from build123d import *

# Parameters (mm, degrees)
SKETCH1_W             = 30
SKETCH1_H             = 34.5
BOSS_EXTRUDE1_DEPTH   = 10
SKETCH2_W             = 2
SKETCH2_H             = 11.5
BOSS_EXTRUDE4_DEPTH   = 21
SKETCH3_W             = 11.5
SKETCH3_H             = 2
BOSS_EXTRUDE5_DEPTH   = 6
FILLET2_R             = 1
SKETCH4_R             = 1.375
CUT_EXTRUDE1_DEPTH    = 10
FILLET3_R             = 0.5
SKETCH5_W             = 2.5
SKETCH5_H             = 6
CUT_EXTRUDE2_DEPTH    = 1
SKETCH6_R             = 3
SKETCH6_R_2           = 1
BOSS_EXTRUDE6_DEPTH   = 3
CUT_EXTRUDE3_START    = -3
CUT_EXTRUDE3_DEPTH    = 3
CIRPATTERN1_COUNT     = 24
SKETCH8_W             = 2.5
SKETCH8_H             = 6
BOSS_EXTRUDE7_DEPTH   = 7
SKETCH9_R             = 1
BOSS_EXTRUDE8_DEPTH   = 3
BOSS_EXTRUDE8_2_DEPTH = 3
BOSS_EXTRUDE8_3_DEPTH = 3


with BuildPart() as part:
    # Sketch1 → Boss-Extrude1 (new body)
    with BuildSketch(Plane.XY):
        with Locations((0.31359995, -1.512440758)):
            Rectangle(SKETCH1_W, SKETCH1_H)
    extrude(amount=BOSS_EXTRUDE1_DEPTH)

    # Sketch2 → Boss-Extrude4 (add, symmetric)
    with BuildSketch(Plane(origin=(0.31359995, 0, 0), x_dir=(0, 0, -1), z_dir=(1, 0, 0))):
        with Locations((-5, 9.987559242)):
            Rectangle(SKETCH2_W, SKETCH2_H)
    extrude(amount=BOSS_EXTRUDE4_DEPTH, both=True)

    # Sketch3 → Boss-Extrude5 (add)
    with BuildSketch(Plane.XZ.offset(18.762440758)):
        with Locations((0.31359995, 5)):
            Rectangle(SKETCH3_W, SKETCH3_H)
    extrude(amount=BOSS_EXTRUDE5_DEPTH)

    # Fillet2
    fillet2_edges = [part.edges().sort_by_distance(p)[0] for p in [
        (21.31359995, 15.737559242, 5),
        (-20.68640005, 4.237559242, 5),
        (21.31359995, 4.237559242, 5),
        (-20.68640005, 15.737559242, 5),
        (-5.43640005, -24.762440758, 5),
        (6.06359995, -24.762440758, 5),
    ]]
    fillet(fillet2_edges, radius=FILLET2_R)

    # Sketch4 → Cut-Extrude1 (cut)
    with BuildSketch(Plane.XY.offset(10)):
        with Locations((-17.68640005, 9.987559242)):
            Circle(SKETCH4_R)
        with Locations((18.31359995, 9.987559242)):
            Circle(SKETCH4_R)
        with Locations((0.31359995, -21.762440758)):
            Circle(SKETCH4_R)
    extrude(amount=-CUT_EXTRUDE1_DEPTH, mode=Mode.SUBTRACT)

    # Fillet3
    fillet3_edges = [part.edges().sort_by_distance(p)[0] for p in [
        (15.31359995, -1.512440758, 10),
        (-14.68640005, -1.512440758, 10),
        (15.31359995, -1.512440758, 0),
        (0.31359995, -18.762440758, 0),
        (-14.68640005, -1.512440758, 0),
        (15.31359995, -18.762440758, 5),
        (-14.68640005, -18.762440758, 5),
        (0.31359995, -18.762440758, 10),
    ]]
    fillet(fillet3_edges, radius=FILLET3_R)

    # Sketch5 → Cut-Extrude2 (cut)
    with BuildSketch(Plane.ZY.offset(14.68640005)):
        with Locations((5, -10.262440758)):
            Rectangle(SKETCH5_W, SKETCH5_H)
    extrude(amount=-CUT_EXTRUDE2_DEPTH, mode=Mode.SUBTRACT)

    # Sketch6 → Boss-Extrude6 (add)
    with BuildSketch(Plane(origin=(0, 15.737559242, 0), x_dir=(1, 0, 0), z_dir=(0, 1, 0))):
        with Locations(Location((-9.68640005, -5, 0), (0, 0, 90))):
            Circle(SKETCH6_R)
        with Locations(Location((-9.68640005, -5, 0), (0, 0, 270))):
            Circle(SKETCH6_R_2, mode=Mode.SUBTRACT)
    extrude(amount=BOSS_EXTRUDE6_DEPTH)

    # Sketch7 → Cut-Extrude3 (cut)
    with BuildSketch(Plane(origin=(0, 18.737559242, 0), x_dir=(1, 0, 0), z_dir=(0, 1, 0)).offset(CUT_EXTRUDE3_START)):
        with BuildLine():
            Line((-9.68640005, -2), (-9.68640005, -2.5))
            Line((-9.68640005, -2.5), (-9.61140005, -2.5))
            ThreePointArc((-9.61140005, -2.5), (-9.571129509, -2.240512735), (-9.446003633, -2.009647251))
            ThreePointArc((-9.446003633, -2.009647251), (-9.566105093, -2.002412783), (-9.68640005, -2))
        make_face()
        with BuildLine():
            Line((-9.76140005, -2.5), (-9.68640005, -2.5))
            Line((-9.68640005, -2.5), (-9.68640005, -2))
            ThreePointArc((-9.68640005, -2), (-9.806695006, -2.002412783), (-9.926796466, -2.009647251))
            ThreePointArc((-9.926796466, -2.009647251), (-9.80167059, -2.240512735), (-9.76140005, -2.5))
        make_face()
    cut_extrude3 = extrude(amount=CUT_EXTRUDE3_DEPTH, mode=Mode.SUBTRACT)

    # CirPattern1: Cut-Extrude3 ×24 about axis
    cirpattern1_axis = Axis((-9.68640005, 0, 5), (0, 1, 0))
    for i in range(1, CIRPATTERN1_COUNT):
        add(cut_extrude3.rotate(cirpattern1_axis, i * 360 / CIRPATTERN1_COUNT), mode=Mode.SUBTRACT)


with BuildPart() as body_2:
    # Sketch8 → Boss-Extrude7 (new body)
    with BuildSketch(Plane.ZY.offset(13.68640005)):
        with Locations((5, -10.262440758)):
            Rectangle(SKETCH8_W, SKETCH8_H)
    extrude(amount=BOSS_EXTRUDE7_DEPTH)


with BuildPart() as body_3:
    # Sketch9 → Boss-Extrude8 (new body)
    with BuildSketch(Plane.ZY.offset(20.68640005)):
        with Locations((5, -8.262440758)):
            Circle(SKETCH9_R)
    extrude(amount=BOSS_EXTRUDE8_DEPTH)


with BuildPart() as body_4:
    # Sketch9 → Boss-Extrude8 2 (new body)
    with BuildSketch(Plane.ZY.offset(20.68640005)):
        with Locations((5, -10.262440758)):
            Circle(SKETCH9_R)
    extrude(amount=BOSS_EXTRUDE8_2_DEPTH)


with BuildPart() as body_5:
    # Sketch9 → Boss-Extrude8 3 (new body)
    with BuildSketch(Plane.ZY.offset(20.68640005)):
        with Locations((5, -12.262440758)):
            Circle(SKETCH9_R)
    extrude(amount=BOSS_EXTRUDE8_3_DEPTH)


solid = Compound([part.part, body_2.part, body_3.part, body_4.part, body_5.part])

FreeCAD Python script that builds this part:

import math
import FreeCAD as App
import Part
import Sketcher

V = App.Vector


def edges_at(feature, points):
    """Names of the edges that pass closest to the given points."""
    edges = feature.Shape.Edges
    near = lambda p: min(range(len(edges)), key=lambda i: edges[i].distToShape(Part.Vertex(*p))[0])
    return sorted({f"Edge{near(p) + 1}" for p in points})

doc = App.newDocument("Part")
body = doc.addObject("PartDesign::Body", "Body")

# Sketch on XY plane
sketch1 = body.newObject("Sketcher::SketchObject", "Sketch")
sketch1.AttachmentSupport = (doc.getObject("XY_Plane"), [""])
sketch1.MapMode = "FlatFace"
sketch1.addGeometry([
    Part.LineSegment(V(-15, 16, 0), V(-15, -19, 0)),
    Part.LineSegment(V(-15, -19, 0), V(15, -19, 0)),
    Part.LineSegment(V(15, -19, 0), V(15, 16, 0)),
    Part.LineSegment(V(15, 16, 0), V(-15, 16, 0)),
], False)
sketch1.addConstraint([
    Sketcher.Constraint("Coincident", 0, 2, 1, 1),
    Sketcher.Constraint("Coincident", 1, 2, 2, 1),
    Sketcher.Constraint("Coincident", 2, 2, 3, 1),
    Sketcher.Constraint("Coincident", 3, 2, 0, 1),
    Sketcher.Constraint("Vertical", 0),
    Sketcher.Constraint("Horizontal", 1),
    Sketcher.Constraint("Vertical", 2),
    Sketcher.Constraint("Horizontal", 3),
    Sketcher.Constraint("DistanceX", 1, 1, 1, 2, 30.0),
    Sketcher.Constraint("DistanceY", 0, 2, 0, 1, 34.5),
    Sketcher.Constraint("DistanceX", 0, 2, -1, 1, 14.6864),
    Sketcher.Constraint("DistanceY", 0, 2, -1, 1, 18.762441),
])
pad1 = body.newObject("PartDesign::Pad", "Pad")
pad1.Profile = sketch1
pad1.Length = 10

# Sketch on YZ plane
sketch2 = body.newObject("Sketcher::SketchObject", "Sketch001")
sketch2.AttachmentSupport = (doc.getObject("YZ_Plane"), [""])
sketch2.MapMode = "FlatFace"
sketch2.AttachmentOffset = App.Placement(V(0, 0, 0.3136), App.Rotation())
sketch2.addGeometry([
    Part.LineSegment(V(15.7, 6, 0), V(4.2, 6, 0)),
    Part.LineSegment(V(4.2, 6, 0), V(4.2, 4, 0)),
    Part.LineSegment(V(4.2, 4, 0), V(15.7, 4, 0)),
    Part.LineSegment(V(15.7, 4, 0), V(15.7, 6, 0)),
], False)
sketch2.addConstraint([
    Sketcher.Constraint("Coincident", 0, 2, 1, 1),
    Sketcher.Constraint("Coincident", 1, 2, 2, 1),
    Sketcher.Constraint("Coincident", 2, 2, 3, 1),
    Sketcher.Constraint("Coincident", 3, 2, 0, 1),
    Sketcher.Constraint("Horizontal", 0),
    Sketcher.Constraint("Vertical", 1),
    Sketcher.Constraint("Horizontal", 2),
    Sketcher.Constraint("Vertical", 3),
    Sketcher.Constraint("DistanceY", 1, 2, 1, 1, 2.0),
    Sketcher.Constraint("DistanceX", 0, 2, 0, 1, 11.5),
    Sketcher.Constraint("DistanceY", -1, 1, 0, 2, 6.0),
    Sketcher.Constraint("DistanceX", -1, 1, 0, 2, 4.237559),
])
pad2 = body.newObject("PartDesign::Pad", "Pad001")
pad2.Profile = sketch2
pad2.Length = 42
pad2.Midplane = True

# Sketch on XZ plane
sketch3 = body.newObject("Sketcher::SketchObject", "Sketch002")
sketch3.AttachmentSupport = (doc.getObject("XZ_Plane"), [""])
sketch3.MapMode = "FlatFace"
sketch3.AttachmentOffset = App.Placement(V(0, 0, 18.762441), App.Rotation())
sketch3.addGeometry([
    Part.LineSegment(V(-5.4, 6, 0), V(-5.4, 4, 0)),
    Part.LineSegment(V(-5.4, 4, 0), V(6.1, 4, 0)),
    Part.LineSegment(V(6.1, 4, 0), V(6.1, 6, 0)),
    Part.LineSegment(V(6.1, 6, 0), V(-5.4, 6, 0)),
], False)
sketch3.addConstraint([
    Sketcher.Constraint("Coincident", 0, 2, 1, 1),
    Sketcher.Constraint("Coincident", 1, 2, 2, 1),
    Sketcher.Constraint("Coincident", 2, 2, 3, 1),
    Sketcher.Constraint("Coincident", 3, 2, 0, 1),
    Sketcher.Constraint("Vertical", 0),
    Sketcher.Constraint("Horizontal", 1),
    Sketcher.Constraint("Vertical", 2),
    Sketcher.Constraint("Horizontal", 3),
    Sketcher.Constraint("DistanceY", 0, 2, 0, 1, 2.0),
    Sketcher.Constraint("DistanceX", 1, 1, 1, 2, 11.5),
    Sketcher.Constraint("DistanceY", -1, 1, 0, 2, 4.0),
    Sketcher.Constraint("DistanceX", 0, 2, -1, 1, 5.4364),
])
pad3 = body.newObject("PartDesign::Pad", "Pad002")
pad3.Profile = sketch3
pad3.Length = 6
doc.recompute()

fillet = body.newObject("PartDesign::Fillet", "Fillet")
fillet.Base = (pad3, edges_at(pad3, [
    (21.314, 15.738, 5),
    (-20.686, 4.238, 5),
    (21.314, 4.238, 5),
    (-20.686, 15.738, 5),
    (-5.436, -24.762, 5),
    (6.064, -24.762, 5),
]))
fillet.Radius = 1

# Sketch on XY plane
sketch4 = body.newObject("Sketcher::SketchObject", "Sketch003")
sketch4.AttachmentSupport = (doc.getObject("XY_Plane"), [""])
sketch4.MapMode = "FlatFace"
sketch4.AttachmentOffset = App.Placement(V(0, 0, 10), App.Rotation())
sketch4.addGeometry([
    Part.Circle(V(-17.7, 10, 0), V(0, 0, 1), 1.4),
    Part.Circle(V(18.3, 10, 0), V(0, 0, 1), 1.4),
    Part.Circle(V(0.3, -21.8, 0), V(0, 0, 1), 1.4),
], False)
sketch4.addConstraint([
    Sketcher.Constraint("Equal", 0, 1),
    Sketcher.Constraint("Equal", 1, 2),
    Sketcher.Constraint("Horizontal", 0, 3, 1, 3),
    Sketcher.Constraint("Diameter", 0, 2.75),
    Sketcher.Constraint("DistanceX", 0, 3, 1, 3, 36.0),
    Sketcher.Constraint("DistanceX", 0, 3, 2, 3, 18.0),
    Sketcher.Constraint("DistanceY", 2, 3, 0, 3, 31.75),
    Sketcher.Constraint("DistanceX", 0, 3, -1, 1, 17.6864),
    Sketcher.Constraint("DistanceY", -1, 1, 0, 3, 9.987559),
])
pocket1 = body.newObject("PartDesign::Pocket", "Pocket")
pocket1.Profile = sketch4
pocket1.Length = 10
doc.recompute()

fillet2 = body.newObject("PartDesign::Fillet", "Fillet001")
fillet2.Base = (pocket1, edges_at(pocket1, [
    (15.314, -1.512, 10),
    (-14.686, -1.512, 10),
    (15.314, -1.512, 0),
    (0.314, -18.762, 0),
    (-14.686, -1.512, 0),
    (15.314, -18.762, 5),
    (-14.686, -18.762, 5),
    (0.314, -18.762, 10),
]))
fillet2.Radius = 0.5

# Sketch on YZ plane
sketch5 = body.newObject("Sketcher::SketchObject", "Sketch004")
sketch5.AttachmentSupport = (doc.getObject("YZ_Plane"), [""])
sketch5.MapMode = "FlatFace"
sketch5.AttachmentOffset = App.Placement(V(0, 0, -14.6864), App.Rotation())
sketch5.addGeometry([
    Part.LineSegment(V(-7.3, 3.8, 0), V(-13.3, 3.8, 0)),
    Part.LineSegment(V(-13.3, 3.8, 0), V(-13.3, 6.2, 0)),
    Part.LineSegment(V(-13.3, 6.2, 0), V(-7.3, 6.2, 0)),
    Part.LineSegment(V(-7.3, 6.2, 0), V(-7.3, 3.8, 0)),
], False)
sketch5.addConstraint([
    Sketcher.Constraint("Coincident", 0, 2, 1, 1),
    Sketcher.Constraint("Coincident", 1, 2, 2, 1),
    Sketcher.Constraint("Coincident", 2, 2, 3, 1),
    Sketcher.Constraint("Coincident", 3, 2, 0, 1),
    Sketcher.Constraint("Horizontal", 0),
    Sketcher.Constraint("Vertical", 1),
    Sketcher.Constraint("Horizontal", 2),
    Sketcher.Constraint("Vertical", 3),
    Sketcher.Constraint("DistanceX", 0, 2, 0, 1, 6.0),
    Sketcher.Constraint("DistanceY", 1, 1, 1, 2, 2.5),
    Sketcher.Constraint("DistanceY", -1, 1, 0, 2, 3.75),
    Sketcher.Constraint("DistanceX", 0, 2, -1, 1, 13.262441),
])
pocket2 = body.newObject("PartDesign::Pocket", "Pocket001")
pocket2.Profile = sketch5
pocket2.Length = 1
pocket2.Reversed = True

# Sketch on XZ plane
sketch6 = body.newObject("Sketcher::SketchObject", "Sketch005")
sketch6.AttachmentSupport = (doc.getObject("XZ_Plane"), [""])
sketch6.MapMode = "FlatFace"
sketch6.AttachmentOffset = App.Placement(V(0, 0, -15.737559), App.Rotation())
sketch6.addGeometry([
    Part.Circle(V(-9.7, 5, 0), V(0, 0, 1), 3),
    Part.Circle(V(-9.7, 5, 0), V(0, 0, 1), 1),
], False)
sketch6.addConstraint([
    Sketcher.Constraint("Coincident", 1, 3, 0, 3),
    Sketcher.Constraint("Diameter", 0, 6.0),
    Sketcher.Constraint("Diameter", 1, 2.0),
    Sketcher.Constraint("DistanceY", -1, 1, 0, 3, 5.0),
    Sketcher.Constraint("DistanceX", 0, 3, -1, 1, 9.6864),
])
pad4 = body.newObject("PartDesign::Pad", "Pad003")
pad4.Profile = sketch6
pad4.Length = 3
pad4.Reversed = True

# Sketch on XZ plane
sketch7 = body.newObject("Sketcher::SketchObject", "Sketch006")
sketch7.AttachmentSupport = (doc.getObject("XZ_Plane"), [""])
sketch7.MapMode = "FlatFace"
sketch7.AttachmentOffset = App.Placement(V(0, 0, -15.737559), App.Rotation())
sketch7.addGeometry([
    Part.ArcOfCircle(Part.Circle(V(-8.84, 2.49, 0), V(0, 0, 1), 0.77), math.radians(179), math.radians(218)),  # 0
    Part.ArcOfCircle(Part.Circle(V(-9.69, 5, 0), V(0, 0, 1), 3), math.radians(-90), math.radians(-85.4)),  # 1
    Part.ArcOfCircle(Part.Circle(V(-9.69, 5, 0), V(0, 0, 1), 3), math.radians(-94.6), math.radians(-90)),  # 2
    Part.ArcOfCircle(Part.Circle(V(-10.53, 2.49, 0), V(0, 0, 1), 0.77), math.radians(-38), math.radians(1)),  # 3
    Part.LineSegment(V(-9.76, 2.5, 0), V(-9.61, 2.5, 0)),  # 4
], False)
sketch7.addConstraint([
    Sketcher.Constraint("Coincident", 0, 2, 1, 2),
    Sketcher.Constraint("Tangent", 1, 1, 2, 2),
    Sketcher.Constraint("Coincident", 2, 1, 3, 1),
    Sketcher.Constraint("Coincident", 3, 2, 4, 1),
    Sketcher.Constraint("Coincident", 4, 2, 0, 1),
    Sketcher.Constraint("Horizontal", 4),
    Sketcher.Constraint("Equal", 1, 2),
    Sketcher.Constraint("Equal", 0, 3),
    Sketcher.Constraint("Horizontal", 0, 3, 3, 3),
    Sketcher.Constraint("Horizontal", 0, 2, 2, 1),
    Sketcher.Constraint("Vertical", 2, 3, 1, 1),
    Sketcher.Constraint("Radius", 1, 3.0),
    Sketcher.Constraint("Radius", 0, 0.77),
    Sketcher.Constraint("DistanceY", -1, 1, 1, 3, 5.0),
    Sketcher.Constraint("DistanceX", 4, 1, 4, 2, 0.15),
    Sketcher.Constraint("DistanceY", -1, 1, 3, 2, 2.5),
    Sketcher.Constraint("DistanceX", 1, 3, -1, 1, 9.6864),
    Sketcher.Constraint("DistanceY", -1, 1, 0, 3, 2.486612),
])
pocket3 = body.newObject("PartDesign::Pocket", "Pocket002")
pocket3.Profile = sketch7
pocket3.Length = 3
doc.recompute()

datumline = body.newObject("PartDesign::Line", "DatumLine")
datumline.Placement = App.Placement(V(-9.6864, 0, 5), App.Rotation(V(0, 0, 1), V(0, 1, 0)))
polarpattern = body.newObject("PartDesign::PolarPattern", "PolarPattern")
polarpattern.Originals = [pocket3]
polarpattern.Axis = (datumline, [""])
polarpattern.Angle = 360
polarpattern.Occurrences = 24
body.Tip = polarpattern
body2 = doc.addObject("PartDesign::Body", "Body001")

# Sketch on YZ plane
sketch8 = body2.newObject("Sketcher::SketchObject", "Sketch007")
sketch8.AttachmentSupport = (doc.getObject("YZ_Plane001"), [""])
sketch8.MapMode = "FlatFace"
sketch8.AttachmentOffset = App.Placement(V(0, 0, -13.6864), App.Rotation())
sketch8.addGeometry([
    Part.LineSegment(V(-7.3, 3.8, 0), V(-13.3, 3.8, 0)),
    Part.LineSegment(V(-13.3, 3.8, 0), V(-13.3, 6.2, 0)),
    Part.LineSegment(V(-13.3, 6.2, 0), V(-7.3, 6.2, 0)),
    Part.LineSegment(V(-7.3, 6.2, 0), V(-7.3, 3.8, 0)),
], False)
sketch8.addConstraint([
    Sketcher.Constraint("Coincident", 0, 2, 1, 1),
    Sketcher.Constraint("Coincident", 1, 2, 2, 1),
    Sketcher.Constraint("Coincident", 2, 2, 3, 1),
    Sketcher.Constraint("Coincident", 3, 2, 0, 1),
    Sketcher.Constraint("Horizontal", 0),
    Sketcher.Constraint("Vertical", 1),
    Sketcher.Constraint("Horizontal", 2),
    Sketcher.Constraint("Vertical", 3),
    Sketcher.Constraint("DistanceX", 0, 2, 0, 1, 6.0),
    Sketcher.Constraint("DistanceY", 1, 1, 1, 2, 2.5),
    Sketcher.Constraint("DistanceY", -1, 1, 0, 2, 3.75),
    Sketcher.Constraint("DistanceX", 0, 2, -1, 1, 13.262441),
])
pad5 = body2.newObject("PartDesign::Pad", "Pad004")
pad5.Profile = sketch8
pad5.Length = 7
pad5.Reversed = True
body3 = doc.addObject("PartDesign::Body", "Body002")

# Sketch on YZ plane
sketch9 = body3.newObject("Sketcher::SketchObject", "Sketch008")
sketch9.AttachmentSupport = (doc.getObject("YZ_Plane002"), [""])
sketch9.MapMode = "FlatFace"
sketch9.AttachmentOffset = App.Placement(V(0, 0, -20.6864), App.Rotation())
sketch9.addGeometry(Part.Circle(V(-8.3, 5, 0), V(0, 0, 1), 1), False)
sketch9.addConstraint([
    Sketcher.Constraint("Diameter", 0, 2.0),
    Sketcher.Constraint("DistanceY", -1, 1, 0, 3, 5.0),
    Sketcher.Constraint("DistanceX", 0, 3, -1, 1, 8.262441),
])
pad6 = body3.newObject("PartDesign::Pad", "Pad005")
pad6.Profile = sketch9
pad6.Length = 3
pad6.Reversed = True
body4 = doc.addObject("PartDesign::Body", "Body003")

# Sketch on YZ plane
sketch10 = body4.newObject("Sketcher::SketchObject", "Sketch009")
sketch10.AttachmentSupport = (doc.getObject("YZ_Plane003"), [""])
sketch10.MapMode = "FlatFace"
sketch10.AttachmentOffset = App.Placement(V(0, 0, -20.6864), App.Rotation())
sketch10.addGeometry(Part.Circle(V(-10.3, 5, 0), V(0, 0, 1), 1), False)
sketch10.addConstraint([
    Sketcher.Constraint("Diameter", 0, 2.0),
    Sketcher.Constraint("DistanceY", -1, 1, 0, 3, 5.0),
    Sketcher.Constraint("DistanceX", 0, 3, -1, 1, 10.262441),
])
pad7 = body4.newObject("PartDesign::Pad", "Pad006")
pad7.Profile = sketch10
pad7.Length = 3
pad7.Reversed = True
body5 = doc.addObject("PartDesign::Body", "Body004")

# Sketch on YZ plane
sketch11 = body5.newObject("Sketcher::SketchObject", "Sketch010")
sketch11.AttachmentSupport = (doc.getObject("YZ_Plane004"), [""])
sketch11.MapMode = "FlatFace"
sketch11.AttachmentOffset = App.Placement(V(0, 0, -20.6864), App.Rotation())
sketch11.addGeometry(Part.Circle(V(-12.3, 5, 0), V(0, 0, 1), 1), False)
sketch11.addConstraint([
    Sketcher.Constraint("Diameter", 0, 2.0),
    Sketcher.Constraint("DistanceY", -1, 1, 0, 3, 5.0),
    Sketcher.Constraint("DistanceX", 0, 3, -1, 1, 12.262441),
])
pad8 = body5.newObject("PartDesign::Pad", "Pad007")
pad8.Profile = sketch11
pad8.Length = 3
pad8.Reversed = True

doc.recompute()
